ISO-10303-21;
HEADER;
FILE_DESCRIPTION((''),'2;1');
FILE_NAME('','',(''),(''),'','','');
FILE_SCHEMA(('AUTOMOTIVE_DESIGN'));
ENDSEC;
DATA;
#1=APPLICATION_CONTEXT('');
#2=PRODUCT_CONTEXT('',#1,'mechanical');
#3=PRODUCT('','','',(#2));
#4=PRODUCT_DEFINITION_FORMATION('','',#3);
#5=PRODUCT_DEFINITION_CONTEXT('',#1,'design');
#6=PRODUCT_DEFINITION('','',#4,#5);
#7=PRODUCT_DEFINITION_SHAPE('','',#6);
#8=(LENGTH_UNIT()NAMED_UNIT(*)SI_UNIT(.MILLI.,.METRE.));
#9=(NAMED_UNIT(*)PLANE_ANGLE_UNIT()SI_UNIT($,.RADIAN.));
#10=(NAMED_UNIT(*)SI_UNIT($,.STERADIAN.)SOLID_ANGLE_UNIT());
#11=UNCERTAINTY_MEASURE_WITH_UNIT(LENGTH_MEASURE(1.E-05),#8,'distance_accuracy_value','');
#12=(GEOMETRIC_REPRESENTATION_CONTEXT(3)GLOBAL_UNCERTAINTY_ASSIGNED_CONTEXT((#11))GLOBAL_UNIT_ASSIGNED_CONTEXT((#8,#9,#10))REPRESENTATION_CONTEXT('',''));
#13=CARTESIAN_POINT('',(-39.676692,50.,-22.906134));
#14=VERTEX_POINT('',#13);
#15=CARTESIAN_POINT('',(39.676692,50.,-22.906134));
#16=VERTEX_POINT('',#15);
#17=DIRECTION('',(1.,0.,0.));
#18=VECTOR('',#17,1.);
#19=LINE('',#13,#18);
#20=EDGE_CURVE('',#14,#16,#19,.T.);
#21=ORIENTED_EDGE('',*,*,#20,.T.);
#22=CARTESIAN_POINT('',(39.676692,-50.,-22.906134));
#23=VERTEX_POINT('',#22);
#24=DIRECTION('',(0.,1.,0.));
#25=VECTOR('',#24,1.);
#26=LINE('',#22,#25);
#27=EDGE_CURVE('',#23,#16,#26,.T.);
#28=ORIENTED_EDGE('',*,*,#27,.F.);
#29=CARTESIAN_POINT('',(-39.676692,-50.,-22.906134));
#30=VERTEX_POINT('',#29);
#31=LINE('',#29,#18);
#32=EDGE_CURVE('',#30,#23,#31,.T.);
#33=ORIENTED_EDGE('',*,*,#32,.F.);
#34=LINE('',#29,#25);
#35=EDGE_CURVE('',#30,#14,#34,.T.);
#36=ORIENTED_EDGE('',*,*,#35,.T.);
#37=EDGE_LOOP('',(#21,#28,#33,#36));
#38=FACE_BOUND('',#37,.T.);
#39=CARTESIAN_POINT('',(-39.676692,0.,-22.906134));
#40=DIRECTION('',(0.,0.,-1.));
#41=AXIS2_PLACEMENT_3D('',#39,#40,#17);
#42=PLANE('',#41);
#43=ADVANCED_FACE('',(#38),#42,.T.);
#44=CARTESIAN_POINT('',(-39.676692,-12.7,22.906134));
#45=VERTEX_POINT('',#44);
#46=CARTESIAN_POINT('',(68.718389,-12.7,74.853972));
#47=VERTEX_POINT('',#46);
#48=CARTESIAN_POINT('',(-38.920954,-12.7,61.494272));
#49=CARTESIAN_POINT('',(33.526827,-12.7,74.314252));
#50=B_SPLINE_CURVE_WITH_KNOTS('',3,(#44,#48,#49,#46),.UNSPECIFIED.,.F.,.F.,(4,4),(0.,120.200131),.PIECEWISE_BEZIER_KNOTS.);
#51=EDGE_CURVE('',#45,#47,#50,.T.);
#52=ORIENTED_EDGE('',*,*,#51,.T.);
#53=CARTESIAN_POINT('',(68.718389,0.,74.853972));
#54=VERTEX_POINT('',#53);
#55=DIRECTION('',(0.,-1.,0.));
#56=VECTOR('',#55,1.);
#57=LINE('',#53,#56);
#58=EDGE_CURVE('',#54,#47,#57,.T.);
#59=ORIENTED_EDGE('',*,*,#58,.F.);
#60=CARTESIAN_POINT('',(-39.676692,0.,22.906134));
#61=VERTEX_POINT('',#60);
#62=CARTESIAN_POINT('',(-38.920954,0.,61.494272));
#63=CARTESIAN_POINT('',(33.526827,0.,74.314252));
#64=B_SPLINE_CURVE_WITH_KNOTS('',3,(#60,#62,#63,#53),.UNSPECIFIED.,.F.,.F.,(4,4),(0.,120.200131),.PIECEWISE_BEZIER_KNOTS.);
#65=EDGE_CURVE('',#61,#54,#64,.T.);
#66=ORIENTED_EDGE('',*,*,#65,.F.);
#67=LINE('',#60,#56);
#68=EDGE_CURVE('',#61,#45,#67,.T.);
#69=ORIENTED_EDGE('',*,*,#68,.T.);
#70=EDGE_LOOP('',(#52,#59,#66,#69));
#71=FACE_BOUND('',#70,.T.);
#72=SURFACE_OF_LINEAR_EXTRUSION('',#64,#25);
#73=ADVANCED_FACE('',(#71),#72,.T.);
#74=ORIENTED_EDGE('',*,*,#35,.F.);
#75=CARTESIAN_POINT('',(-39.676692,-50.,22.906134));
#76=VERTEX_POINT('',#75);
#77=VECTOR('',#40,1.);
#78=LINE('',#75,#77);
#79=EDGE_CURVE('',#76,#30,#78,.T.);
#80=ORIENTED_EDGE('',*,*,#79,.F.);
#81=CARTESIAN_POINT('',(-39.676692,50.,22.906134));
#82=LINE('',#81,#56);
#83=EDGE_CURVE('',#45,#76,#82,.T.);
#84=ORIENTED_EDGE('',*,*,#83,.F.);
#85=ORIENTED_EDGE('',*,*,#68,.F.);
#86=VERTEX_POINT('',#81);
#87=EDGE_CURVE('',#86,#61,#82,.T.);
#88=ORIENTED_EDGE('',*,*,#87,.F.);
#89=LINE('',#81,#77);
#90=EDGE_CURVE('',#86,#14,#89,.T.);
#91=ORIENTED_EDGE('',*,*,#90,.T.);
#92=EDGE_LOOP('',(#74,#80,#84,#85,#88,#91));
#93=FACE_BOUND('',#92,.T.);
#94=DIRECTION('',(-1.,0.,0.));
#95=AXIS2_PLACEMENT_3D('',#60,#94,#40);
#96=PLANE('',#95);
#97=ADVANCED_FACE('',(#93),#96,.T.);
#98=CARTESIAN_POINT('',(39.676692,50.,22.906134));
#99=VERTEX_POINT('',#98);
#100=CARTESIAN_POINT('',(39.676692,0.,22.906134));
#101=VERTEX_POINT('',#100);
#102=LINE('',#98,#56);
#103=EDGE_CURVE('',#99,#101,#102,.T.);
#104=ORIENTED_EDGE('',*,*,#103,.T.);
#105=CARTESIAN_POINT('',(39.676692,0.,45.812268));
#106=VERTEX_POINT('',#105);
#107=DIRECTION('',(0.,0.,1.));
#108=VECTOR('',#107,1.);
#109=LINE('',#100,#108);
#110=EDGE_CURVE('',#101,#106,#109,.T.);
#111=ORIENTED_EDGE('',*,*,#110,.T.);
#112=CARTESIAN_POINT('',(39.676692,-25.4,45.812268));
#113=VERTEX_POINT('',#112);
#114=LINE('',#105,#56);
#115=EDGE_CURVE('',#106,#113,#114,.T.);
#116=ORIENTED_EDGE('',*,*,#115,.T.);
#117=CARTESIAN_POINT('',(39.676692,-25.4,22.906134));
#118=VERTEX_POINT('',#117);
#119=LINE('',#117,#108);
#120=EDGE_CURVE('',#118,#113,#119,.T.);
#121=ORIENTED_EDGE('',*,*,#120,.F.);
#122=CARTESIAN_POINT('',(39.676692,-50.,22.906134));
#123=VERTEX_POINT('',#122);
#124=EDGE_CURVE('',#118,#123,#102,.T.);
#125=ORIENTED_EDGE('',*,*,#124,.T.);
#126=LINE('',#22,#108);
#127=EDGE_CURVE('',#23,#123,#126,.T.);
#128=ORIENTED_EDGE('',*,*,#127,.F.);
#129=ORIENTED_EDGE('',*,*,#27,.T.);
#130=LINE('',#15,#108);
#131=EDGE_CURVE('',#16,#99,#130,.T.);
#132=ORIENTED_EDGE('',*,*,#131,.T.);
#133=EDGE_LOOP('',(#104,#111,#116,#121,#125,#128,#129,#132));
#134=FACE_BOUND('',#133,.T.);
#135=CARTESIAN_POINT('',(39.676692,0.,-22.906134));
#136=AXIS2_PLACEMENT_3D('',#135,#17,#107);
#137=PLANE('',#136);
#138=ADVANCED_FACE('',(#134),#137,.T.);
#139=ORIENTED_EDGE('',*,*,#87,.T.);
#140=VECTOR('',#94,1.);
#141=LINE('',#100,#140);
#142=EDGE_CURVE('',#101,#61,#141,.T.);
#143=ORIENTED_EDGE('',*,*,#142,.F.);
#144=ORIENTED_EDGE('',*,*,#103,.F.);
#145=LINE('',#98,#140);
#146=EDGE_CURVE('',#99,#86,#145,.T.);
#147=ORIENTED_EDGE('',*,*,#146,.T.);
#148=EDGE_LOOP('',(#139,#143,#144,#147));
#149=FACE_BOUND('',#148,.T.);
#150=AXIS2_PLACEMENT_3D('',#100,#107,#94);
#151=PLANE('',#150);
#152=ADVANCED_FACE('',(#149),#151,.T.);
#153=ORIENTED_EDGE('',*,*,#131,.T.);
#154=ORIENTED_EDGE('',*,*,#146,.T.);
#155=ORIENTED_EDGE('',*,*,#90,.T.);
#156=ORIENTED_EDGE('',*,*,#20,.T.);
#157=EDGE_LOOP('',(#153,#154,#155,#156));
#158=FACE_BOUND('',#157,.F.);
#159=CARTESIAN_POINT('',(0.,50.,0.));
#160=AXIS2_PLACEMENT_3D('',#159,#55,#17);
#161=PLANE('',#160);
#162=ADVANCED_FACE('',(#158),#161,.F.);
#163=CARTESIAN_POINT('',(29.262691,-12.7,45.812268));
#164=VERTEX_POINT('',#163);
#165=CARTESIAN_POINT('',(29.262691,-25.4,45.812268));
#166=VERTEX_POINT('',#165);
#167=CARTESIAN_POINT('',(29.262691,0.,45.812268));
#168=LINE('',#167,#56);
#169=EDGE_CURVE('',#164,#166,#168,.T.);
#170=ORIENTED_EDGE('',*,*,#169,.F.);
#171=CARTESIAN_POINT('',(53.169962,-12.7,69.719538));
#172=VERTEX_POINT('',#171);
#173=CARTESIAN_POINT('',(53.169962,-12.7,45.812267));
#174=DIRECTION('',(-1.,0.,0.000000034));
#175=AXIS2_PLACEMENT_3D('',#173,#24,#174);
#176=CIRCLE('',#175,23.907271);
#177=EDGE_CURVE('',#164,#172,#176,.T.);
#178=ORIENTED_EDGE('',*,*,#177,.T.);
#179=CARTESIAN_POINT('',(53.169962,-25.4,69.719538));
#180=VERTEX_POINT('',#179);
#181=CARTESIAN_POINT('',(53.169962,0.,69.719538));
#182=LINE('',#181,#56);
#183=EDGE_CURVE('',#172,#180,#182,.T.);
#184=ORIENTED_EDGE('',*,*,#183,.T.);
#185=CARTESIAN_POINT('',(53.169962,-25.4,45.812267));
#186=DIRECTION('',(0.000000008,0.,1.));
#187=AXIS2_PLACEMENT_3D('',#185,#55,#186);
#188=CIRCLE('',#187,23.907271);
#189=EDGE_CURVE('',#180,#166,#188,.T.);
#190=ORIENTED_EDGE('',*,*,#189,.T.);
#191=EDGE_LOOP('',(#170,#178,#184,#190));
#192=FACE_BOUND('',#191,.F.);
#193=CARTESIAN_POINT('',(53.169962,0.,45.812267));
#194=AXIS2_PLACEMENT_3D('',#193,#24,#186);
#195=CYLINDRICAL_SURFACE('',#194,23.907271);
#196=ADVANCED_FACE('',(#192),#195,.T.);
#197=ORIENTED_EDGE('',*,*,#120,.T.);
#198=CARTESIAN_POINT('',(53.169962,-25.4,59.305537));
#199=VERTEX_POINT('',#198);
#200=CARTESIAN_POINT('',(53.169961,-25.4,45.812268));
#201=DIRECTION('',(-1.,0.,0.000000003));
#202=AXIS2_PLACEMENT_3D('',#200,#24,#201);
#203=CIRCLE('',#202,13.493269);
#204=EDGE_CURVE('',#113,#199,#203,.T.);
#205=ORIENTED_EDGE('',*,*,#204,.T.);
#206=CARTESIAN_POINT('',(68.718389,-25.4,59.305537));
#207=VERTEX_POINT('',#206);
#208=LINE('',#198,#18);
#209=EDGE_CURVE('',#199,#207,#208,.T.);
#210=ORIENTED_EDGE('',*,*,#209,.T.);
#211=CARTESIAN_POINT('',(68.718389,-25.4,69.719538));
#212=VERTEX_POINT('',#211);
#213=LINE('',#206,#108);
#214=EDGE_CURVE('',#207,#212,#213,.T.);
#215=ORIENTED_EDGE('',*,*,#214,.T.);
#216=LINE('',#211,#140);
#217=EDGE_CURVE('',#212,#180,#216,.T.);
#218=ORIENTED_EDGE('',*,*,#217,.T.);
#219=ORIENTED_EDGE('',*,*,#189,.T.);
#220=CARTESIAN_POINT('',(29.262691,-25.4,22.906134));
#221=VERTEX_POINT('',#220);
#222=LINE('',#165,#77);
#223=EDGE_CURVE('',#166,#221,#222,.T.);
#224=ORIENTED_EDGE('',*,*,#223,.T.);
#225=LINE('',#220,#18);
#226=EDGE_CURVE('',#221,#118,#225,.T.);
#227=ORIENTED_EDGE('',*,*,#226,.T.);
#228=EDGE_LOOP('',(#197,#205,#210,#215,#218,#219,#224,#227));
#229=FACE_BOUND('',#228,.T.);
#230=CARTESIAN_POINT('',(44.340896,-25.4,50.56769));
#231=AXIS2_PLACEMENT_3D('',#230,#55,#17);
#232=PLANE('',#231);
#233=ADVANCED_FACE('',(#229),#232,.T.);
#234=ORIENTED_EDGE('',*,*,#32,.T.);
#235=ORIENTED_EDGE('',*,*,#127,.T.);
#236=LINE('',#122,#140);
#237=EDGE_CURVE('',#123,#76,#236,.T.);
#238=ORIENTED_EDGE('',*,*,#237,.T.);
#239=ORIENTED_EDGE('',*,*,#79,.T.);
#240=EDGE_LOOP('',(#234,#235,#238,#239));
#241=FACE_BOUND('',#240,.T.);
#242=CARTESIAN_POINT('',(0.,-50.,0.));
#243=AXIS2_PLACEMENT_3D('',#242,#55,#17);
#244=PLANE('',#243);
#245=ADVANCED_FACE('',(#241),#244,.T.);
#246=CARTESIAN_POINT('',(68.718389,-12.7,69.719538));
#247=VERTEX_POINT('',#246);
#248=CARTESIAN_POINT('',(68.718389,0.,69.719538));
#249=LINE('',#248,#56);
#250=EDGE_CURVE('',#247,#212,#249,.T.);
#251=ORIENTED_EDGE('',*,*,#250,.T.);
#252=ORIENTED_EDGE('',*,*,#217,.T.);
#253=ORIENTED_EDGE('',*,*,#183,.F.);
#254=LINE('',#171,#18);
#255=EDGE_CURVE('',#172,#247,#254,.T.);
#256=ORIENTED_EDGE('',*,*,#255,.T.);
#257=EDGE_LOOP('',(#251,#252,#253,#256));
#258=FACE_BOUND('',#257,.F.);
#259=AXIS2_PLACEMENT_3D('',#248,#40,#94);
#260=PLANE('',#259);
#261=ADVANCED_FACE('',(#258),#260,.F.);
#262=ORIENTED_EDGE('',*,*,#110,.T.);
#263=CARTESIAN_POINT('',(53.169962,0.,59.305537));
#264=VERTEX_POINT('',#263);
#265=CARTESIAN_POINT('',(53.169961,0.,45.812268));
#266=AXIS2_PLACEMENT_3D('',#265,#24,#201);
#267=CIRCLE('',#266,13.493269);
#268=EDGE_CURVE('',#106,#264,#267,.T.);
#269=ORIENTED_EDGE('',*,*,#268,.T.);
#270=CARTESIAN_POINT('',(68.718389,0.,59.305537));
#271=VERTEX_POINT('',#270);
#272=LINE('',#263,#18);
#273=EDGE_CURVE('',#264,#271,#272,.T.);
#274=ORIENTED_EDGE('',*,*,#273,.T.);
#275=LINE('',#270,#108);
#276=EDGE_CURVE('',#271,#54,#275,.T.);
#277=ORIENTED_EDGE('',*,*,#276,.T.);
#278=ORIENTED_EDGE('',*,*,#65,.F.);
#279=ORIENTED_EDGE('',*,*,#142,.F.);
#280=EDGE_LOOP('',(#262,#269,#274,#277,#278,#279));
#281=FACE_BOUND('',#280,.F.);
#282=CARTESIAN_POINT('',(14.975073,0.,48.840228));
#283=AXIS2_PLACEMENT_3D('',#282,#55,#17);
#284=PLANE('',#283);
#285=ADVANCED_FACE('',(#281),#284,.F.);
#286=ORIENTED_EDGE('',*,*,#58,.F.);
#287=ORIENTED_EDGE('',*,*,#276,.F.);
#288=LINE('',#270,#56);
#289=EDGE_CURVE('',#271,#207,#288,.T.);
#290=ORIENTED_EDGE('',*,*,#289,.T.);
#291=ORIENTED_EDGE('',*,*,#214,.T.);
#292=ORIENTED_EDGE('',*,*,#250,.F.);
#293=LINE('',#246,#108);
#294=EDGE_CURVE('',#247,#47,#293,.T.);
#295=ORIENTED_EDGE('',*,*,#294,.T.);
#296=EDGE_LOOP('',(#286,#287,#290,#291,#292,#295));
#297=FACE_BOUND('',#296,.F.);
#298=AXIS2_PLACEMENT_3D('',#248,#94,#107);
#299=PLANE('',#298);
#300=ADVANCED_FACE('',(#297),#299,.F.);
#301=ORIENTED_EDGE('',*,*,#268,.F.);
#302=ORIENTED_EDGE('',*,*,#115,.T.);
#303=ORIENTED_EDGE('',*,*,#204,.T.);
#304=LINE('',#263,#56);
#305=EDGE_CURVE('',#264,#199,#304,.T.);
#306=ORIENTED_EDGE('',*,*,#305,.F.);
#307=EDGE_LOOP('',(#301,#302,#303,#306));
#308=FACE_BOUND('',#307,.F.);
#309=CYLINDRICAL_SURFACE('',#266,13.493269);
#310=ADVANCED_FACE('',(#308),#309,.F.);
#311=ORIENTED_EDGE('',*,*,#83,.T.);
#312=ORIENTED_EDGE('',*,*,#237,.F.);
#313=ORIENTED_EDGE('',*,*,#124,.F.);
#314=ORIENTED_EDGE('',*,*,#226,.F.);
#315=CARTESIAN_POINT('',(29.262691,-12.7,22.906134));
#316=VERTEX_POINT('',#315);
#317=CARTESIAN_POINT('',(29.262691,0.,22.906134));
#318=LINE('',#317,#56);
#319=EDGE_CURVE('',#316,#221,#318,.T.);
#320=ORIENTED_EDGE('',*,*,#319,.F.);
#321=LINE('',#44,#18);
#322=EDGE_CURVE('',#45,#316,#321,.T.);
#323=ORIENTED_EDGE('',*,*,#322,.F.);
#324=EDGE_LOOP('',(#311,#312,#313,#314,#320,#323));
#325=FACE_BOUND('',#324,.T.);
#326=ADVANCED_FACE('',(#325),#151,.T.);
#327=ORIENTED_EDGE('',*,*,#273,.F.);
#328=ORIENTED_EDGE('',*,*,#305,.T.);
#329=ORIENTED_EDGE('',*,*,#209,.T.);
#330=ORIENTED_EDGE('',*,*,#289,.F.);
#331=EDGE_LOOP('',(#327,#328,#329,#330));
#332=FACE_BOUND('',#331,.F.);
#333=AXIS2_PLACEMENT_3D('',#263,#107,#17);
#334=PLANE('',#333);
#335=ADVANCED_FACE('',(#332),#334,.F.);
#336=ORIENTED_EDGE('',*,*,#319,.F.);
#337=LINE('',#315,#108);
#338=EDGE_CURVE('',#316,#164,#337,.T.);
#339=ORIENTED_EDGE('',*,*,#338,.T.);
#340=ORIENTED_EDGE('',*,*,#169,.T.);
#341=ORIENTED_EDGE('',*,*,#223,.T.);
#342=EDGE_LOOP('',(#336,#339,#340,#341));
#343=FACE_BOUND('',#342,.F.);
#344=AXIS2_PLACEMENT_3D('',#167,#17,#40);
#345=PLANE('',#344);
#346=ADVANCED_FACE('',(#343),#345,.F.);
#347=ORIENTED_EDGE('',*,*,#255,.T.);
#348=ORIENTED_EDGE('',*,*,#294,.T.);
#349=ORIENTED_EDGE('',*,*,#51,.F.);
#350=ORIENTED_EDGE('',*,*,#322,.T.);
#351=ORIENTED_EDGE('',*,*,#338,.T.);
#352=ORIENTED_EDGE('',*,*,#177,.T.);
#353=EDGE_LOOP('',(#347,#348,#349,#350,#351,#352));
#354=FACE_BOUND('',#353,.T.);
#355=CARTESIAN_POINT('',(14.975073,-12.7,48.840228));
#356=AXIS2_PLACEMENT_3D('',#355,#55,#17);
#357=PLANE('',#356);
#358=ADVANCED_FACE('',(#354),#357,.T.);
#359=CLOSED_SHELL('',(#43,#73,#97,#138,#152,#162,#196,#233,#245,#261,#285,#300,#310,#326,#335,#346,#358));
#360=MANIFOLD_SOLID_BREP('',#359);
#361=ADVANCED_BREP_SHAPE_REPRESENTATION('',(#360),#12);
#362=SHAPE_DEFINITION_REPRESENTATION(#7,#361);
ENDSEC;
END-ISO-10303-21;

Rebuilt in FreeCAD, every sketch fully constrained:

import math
import FreeCAD as App
import Part
import Sketcher

V = App.Vector
Q = App.Units.Quantity


def add_polygon(sketch, points):
    """Adds a closed chain of lines whose ends are joined by coincident constraints."""
    first, n = sketch.GeometryCount, len(points)
    for a, b in zip(points, points[1:] + points[:1]):
        sketch.addGeometry(Part.LineSegment(App.Vector(*a, 0), App.Vector(*b, 0)), False)
    for i in range(n):
        sketch.addConstraint(Sketcher.Constraint("Coincident", first + i, 2, first + (i + 1) % n, 1))

doc = App.newDocument("Part")
body = doc.addObject("PartDesign::Body", "Body")

sketch1 = body.newObject("Sketcher::SketchObject", "Sketch")
sketch1.AttachmentSupport = (doc.getObject("XZ_Plane"), [""])
sketch1.MapMode = "FlatFace"
add_polygon(sketch1, [(39.676692, -22.906134), (39.676692, 22.906134), (-39.676692, 22.906134), (-39.676692, -22.906134)])
sketch1.addConstraint([
    Sketcher.Constraint("Vertical", 0),
    Sketcher.Constraint("Horizontal", 1),
    Sketcher.Constraint("Vertical", 2),
    Sketcher.Constraint("Horizontal", 3),
    Sketcher.Constraint("Symmetric", 0, 2, 2, 2, -1, 1),
    Sketcher.Constraint("DistanceY", 0, 1, 0, 2, 45.812268),
    Sketcher.Constraint("DistanceX", 1, 2, 1, 1, 79.353384),
])
pad1 = body.newObject("PartDesign::Pad", "Pad")
pad1.Profile = sketch1
pad1.Length = 100
pad1.Midplane = True

sketch2 = body.newObject("Sketcher::SketchObject", "Sketch001")
sketch2.AttachmentSupport = (doc.getObject("XZ_Plane"), [""])
sketch2.MapMode = "FlatFace"
sketch2.addGeometry([
    Part.LineSegment(V(29.262691, 22.906134, 0), V(39.676692, 22.906134, 0)),
    Part.LineSegment(V(39.676692, 22.906134, 0), V(39.676692, 45.812268, 0)),
    Part.ArcOfCircle(Part.Circle(V(53.169961, 45.812268, 0), V(0, 0, 1), 13.493269), math.radians(89.999996), math.radians(180)),
    Part.LineSegment(V(53.169962, 59.305537, 0), V(68.718389, 59.305537, 0)),
    Part.LineSegment(V(68.718389, 59.305537, 0), V(68.718389, 69.719538, 0)),
    Part.LineSegment(V(68.718389, 69.719538, 0), V(53.169962, 69.719538, 0)),
    Part.ArcOfCircle(Part.Circle(V(53.169962, 45.812267, 0), V(0, 0, 1), 23.907271), math.radians(90), math.radians(179.999998)),
    Part.LineSegment(V(29.262691, 45.812268, 0), V(29.262691, 22.906134, 0)),
], False)
sketch2.addConstraint([
    Sketcher.Constraint("Coincident", 0, 2, 1, 1),
    Sketcher.Constraint("Tangent", 1, 2, 2, 2),
    Sketcher.Constraint("Tangent", 2, 1, 3, 1),
    Sketcher.Constraint("Coincident", 3, 2, 4, 1),
    Sketcher.Constraint("Coincident", 4, 2, 5, 1),
    Sketcher.Constraint("Tangent", 5, 2, 6, 1),
    Sketcher.Constraint("Tangent", 6, 2, 7, 1),
    Sketcher.Constraint("Coincident", 7, 2, 0, 1),
    Sketcher.Constraint("Horizontal", 0),
    Sketcher.Constraint("Vertical", 1),
    Sketcher.Constraint("Horizontal", 3),
    Sketcher.Constraint("Vertical", 4),
    Sketcher.Constraint("Horizontal", 5),
    Sketcher.Constraint("Vertical", 7),
    Sketcher.Constraint("Coincident", 6, 3, 2, 3),
    Sketcher.Constraint("DistanceX", 0, 1, 0, 2, Q("0.41 in")),
    Sketcher.Constraint("Radius", 2, 13.493269),
    Sketcher.Constraint("DistanceX", 3, 1, 3, 2, 15.548427),
    Sketcher.Constraint("DistanceY", 1, 1, 1, 2, 22.906134),
    Sketcher.Constraint("DistanceX", -1, 1, 2, 3, 53.169961),
    Sketcher.Constraint("DistanceY", -1, 1, 1, 2, 45.812268),
])
pad2 = body.newObject("PartDesign::Pad", "Pad001")
pad2.Profile = sketch2
pad2.Length = Q("1 in")

sketch3 = body.newObject("Sketcher::SketchObject", "Sketch002")
sketch3.AttachmentSupport = (doc.getObject("XZ_Plane"), [""])
sketch3.MapMode = "FlatFace"
sketch3.addGeometry([
    Part.LineSegment(V(-39.676692, 22.906134, 0), V(29.262691, 22.906134, 0)),
    Part.LineSegment(V(29.262691, 22.906134, 0), V(29.262691, 45.812268, 0)),
    Part.ArcOfCircle(Part.Circle(V(53.169962, 45.812267, 0), V(0, 0, 1), 23.907271), math.radians(90), math.radians(179.999998)),
    Part.LineSegment(V(53.169962, 69.719538, 0), V(68.718389, 69.719538, 0)),
    Part.LineSegment(V(68.718389, 69.719538, 0), V(68.718389, 74.853972, 0)),
    Part.BSplineCurve([V(-39.676692, 22.906134, 0), V(-38.920954, 61.494272, 0), V(33.526827, 74.314252, 0), V(68.718389, 74.853972, 0)], [4, 4], [0, 120.200131], False, 3, [1, 1, 1, 1], False),
], False)
sketch3.addConstraint([
    Sketcher.Constraint("Block", 5),
    Sketcher.Constraint("Coincident", 0, 2, 1, 1),
    Sketcher.Constraint("Tangent", 1, 2, 2, 2),
    Sketcher.Constraint("Tangent", 2, 1, 3, 1),
    Sketcher.Constraint("Coincident", 3, 2, 4, 1),
    Sketcher.Constraint("Coincident", 4, 2, 5, 2),
    Sketcher.Constraint("Coincident", 5, 1, 0, 1),
    Sketcher.Constraint("Horizontal", 0),
    Sketcher.Constraint("Vertical", 1),
    Sketcher.Constraint("Horizontal", 3),
    Sketcher.Constraint("Vertical", 4),
    Sketcher.Constraint("Radius", 2, 23.907271),
    Sketcher.Constraint("DistanceX", 0, 1, 0, 2, 68.939383),
    Sketcher.Constraint("DistanceY", 1, 1, 1, 2, 22.906134),
])
pad3 = body.newObject("PartDesign::Pad", "Pad002")
pad3.Profile = sketch3
pad3.Length = Q("0.5 in")

doc.recompute()
